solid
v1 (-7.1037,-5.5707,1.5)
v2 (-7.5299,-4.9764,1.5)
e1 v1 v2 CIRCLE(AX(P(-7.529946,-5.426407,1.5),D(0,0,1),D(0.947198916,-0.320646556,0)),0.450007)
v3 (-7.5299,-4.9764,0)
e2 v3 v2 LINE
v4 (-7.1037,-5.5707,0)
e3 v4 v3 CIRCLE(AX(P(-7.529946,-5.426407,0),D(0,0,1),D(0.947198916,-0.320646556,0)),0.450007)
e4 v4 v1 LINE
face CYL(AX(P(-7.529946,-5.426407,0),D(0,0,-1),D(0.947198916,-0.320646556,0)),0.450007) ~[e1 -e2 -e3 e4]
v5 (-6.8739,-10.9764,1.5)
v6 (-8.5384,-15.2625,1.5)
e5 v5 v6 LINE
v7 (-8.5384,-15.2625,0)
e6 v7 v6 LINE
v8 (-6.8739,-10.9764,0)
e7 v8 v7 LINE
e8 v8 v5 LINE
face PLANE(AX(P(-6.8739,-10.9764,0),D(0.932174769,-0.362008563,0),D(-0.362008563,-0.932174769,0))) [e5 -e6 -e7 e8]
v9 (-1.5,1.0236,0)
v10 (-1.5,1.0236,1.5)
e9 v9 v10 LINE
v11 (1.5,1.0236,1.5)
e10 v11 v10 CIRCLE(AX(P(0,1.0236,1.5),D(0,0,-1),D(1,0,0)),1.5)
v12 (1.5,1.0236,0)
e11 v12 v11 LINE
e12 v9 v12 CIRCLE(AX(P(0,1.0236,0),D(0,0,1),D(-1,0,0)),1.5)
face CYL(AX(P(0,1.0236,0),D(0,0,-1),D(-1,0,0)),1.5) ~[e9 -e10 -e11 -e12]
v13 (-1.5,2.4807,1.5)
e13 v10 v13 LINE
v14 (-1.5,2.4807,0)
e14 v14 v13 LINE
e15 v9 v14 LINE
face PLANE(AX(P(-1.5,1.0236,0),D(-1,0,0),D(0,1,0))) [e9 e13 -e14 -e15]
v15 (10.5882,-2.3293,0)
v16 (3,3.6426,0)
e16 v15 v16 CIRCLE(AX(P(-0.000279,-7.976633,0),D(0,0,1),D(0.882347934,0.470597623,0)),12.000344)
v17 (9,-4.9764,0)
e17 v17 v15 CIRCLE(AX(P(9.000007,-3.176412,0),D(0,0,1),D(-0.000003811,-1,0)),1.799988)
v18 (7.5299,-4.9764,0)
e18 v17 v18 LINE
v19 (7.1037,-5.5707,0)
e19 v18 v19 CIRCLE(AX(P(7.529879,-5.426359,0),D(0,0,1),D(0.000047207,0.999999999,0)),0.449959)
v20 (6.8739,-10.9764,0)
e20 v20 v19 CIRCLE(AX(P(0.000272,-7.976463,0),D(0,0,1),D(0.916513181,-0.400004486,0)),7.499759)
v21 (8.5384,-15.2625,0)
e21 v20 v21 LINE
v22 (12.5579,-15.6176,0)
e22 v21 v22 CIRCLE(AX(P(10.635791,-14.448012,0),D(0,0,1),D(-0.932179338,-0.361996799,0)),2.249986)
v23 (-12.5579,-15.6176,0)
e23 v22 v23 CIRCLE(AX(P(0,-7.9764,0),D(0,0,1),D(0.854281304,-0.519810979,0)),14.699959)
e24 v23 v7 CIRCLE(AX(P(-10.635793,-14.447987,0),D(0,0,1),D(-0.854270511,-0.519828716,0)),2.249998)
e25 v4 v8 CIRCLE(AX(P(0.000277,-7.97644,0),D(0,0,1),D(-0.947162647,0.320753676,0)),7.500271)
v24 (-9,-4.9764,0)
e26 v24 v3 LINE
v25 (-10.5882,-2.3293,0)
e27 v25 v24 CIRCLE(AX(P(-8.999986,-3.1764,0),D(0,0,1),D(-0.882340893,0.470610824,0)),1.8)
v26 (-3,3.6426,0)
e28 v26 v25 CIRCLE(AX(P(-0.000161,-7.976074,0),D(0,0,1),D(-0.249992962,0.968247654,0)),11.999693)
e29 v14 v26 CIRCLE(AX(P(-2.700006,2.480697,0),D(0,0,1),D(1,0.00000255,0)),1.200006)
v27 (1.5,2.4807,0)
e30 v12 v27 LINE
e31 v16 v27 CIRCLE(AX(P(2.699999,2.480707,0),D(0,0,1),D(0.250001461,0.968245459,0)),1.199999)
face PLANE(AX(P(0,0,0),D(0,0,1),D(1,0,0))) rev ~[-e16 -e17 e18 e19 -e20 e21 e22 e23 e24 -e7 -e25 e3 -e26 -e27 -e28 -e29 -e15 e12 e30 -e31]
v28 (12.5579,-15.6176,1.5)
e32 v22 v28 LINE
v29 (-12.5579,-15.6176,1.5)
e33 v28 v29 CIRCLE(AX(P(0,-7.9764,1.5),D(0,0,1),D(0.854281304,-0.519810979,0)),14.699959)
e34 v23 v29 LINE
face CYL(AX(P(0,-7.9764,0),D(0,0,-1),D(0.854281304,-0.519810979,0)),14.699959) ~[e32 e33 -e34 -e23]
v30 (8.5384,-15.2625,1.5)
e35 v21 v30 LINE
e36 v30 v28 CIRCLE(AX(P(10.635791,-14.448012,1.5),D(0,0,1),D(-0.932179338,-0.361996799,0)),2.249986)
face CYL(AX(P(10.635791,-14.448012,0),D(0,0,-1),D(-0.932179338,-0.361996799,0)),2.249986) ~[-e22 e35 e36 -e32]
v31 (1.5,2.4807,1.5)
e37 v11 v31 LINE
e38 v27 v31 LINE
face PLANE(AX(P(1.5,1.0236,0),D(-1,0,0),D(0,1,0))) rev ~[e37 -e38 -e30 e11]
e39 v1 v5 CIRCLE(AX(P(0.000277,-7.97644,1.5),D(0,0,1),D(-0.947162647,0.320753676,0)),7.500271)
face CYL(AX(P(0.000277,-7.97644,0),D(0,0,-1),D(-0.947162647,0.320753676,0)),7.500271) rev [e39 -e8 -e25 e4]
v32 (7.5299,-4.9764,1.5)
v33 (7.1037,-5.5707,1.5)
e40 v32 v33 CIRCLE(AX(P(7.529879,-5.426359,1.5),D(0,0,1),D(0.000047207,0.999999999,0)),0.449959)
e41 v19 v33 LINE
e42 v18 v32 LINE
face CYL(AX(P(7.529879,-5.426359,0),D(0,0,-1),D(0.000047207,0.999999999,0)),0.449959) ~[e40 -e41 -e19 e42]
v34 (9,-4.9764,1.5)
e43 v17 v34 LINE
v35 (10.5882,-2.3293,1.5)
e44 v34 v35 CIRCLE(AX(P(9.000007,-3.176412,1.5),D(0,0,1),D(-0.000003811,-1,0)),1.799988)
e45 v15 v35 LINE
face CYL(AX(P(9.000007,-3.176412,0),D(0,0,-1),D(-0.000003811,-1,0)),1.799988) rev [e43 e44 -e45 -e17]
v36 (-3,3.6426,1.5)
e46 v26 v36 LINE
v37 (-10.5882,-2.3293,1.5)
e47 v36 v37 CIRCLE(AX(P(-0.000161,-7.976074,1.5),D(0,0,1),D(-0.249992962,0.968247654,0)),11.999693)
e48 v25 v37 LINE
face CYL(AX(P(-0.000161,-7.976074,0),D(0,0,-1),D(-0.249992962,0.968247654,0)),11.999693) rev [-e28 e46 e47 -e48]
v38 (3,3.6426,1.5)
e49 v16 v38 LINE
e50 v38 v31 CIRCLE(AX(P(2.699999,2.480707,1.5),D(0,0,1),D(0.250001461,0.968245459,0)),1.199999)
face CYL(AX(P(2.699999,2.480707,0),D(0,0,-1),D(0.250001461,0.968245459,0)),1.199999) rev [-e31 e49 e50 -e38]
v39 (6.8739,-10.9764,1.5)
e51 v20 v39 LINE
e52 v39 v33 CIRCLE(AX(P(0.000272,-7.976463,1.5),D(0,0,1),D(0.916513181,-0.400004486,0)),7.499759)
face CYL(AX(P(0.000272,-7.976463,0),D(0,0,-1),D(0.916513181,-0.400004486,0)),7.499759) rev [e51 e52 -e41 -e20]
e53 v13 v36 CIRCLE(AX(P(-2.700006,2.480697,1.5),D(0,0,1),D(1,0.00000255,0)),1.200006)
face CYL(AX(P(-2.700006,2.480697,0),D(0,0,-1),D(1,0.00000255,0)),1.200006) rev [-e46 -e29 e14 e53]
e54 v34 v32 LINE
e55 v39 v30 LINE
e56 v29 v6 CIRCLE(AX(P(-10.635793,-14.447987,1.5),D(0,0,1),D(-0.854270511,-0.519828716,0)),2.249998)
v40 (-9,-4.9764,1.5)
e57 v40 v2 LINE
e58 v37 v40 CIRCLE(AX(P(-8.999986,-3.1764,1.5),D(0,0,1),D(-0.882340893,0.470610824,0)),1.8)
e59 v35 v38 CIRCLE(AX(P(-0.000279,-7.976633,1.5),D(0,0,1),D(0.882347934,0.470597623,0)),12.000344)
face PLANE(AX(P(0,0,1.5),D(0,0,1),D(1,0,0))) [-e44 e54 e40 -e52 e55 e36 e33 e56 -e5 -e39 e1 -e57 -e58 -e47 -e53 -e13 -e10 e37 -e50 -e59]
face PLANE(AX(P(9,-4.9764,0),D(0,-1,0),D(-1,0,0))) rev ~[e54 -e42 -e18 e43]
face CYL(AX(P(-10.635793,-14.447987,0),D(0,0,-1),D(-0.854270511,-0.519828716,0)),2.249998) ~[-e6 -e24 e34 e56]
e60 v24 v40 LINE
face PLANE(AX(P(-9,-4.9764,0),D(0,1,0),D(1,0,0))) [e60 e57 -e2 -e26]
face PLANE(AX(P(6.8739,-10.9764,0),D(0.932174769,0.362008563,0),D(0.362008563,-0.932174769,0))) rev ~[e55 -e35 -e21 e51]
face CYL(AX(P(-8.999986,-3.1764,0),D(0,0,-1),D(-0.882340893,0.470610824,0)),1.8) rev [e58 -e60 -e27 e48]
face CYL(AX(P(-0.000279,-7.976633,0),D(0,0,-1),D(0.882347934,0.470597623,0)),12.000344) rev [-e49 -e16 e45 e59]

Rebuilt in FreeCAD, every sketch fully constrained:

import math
import FreeCAD as App
import Part
import Sketcher
Q = App.Units.Quantity

doc = App.newDocument("Part")
params = doc.addObject("Spreadsheet::Sheet", "Params")
for row, (alias, value) in enumerate([
    ("sketch1_radius", "12 mm"),
    ("sketch1_radius2", "1.5 mm"),
    ("sketch1_radius3", "1.2 mm"),
    ("sketch1_radius4", "1.8 mm"),
    ("sketch1_radius5", "7.5 mm"),
    ("pad1_length", "1.5 mm"),
], start=1):
    params.set(f"A{row}", alias)
    params.set(f"B{row}", "=" + value)
    params.setAlias(f"B{row}", alias)

body = doc.addObject("PartDesign::Body", "Body")

sketch1 = body.newObject("Sketcher::SketchObject", "Sketch")
sketch1.AttachmentSupport = (doc.getObject("XY_Plane"), [""])
sketch1.MapMode = "FlatFace"
sketch1.addGeometry([
    Part.ArcOfCircle(Part.Circle(App.Vector(0, 1.02, 0), App.Vector(0, 0, 1), 1.5), math.radians(180), math.radians(360)),
    Part.LineSegment(App.Vector(1.5, 1.02, 0), App.Vector(1.5, 2.48, 0)),
    Part.ArcOfCircle(Part.Circle(App.Vector(2.7, 2.48, 0), App.Vector(0, 0, 1), 1.2), math.radians(76), math.radians(180)),
    Part.ArcOfCircle(Part.Circle(App.Vector(0, -7.98, 0), App.Vector(0, 0, 1), 12), math.radians(28), math.radians(76)),
    Part.ArcOfCircle(Part.Circle(App.Vector(9, -3.18, 0), App.Vector(0, 0, 1), 1.8), math.radians(-90), math.radians(28)),
    Part.LineSegment(App.Vector(9, -4.98, 0), App.Vector(7.53, -4.98, 0)),
    Part.ArcOfCircle(Part.Circle(App.Vector(7.53, -5.43, 0), App.Vector(0, 0, 1), 0.45), math.radians(90), math.radians(199)),
    Part.ArcOfCircle(Part.Circle(App.Vector(0, -7.98, 0), App.Vector(0, 0, 1), 7.5), math.radians(-24), math.radians(19)),
    Part.LineSegment(App.Vector(6.87, -10.98, 0), App.Vector(8.54, -15.26, 0)),
    Part.ArcOfCircle(Part.Circle(App.Vector(10.64, -14.45, 0), App.Vector(0, 0, 1), 2.25), math.radians(-159), math.radians(-31)),
    Part.ArcOfCircle(Part.Circle(App.Vector(0, -7.98, 0), App.Vector(0, 0, 1), 14.7), math.radians(-31), math.radians(211)),
    Part.ArcOfCircle(Part.Circle(App.Vector(-10.64, -14.45, 0), App.Vector(0, 0, 1), 2.25), math.radians(-149), math.radians(-21)),
    Part.LineSegment(App.Vector(-8.54, -15.26, 0), App.Vector(-6.87, -10.98, 0)),
    Part.ArcOfCircle(Part.Circle(App.Vector(0, -7.98, 0), App.Vector(0, 0, 1), 7.5), math.radians(161), math.radians(204)),
    Part.ArcOfCircle(Part.Circle(App.Vector(-7.53, -5.43, 0), App.Vector(0, 0, 1), 0.45), math.radians(-19), math.radians(90)),
    Part.LineSegment(App.Vector(-7.53, -4.98, 0), App.Vector(-9, -4.98, 0)),
    Part.ArcOfCircle(Part.Circle(App.Vector(-9, -3.18, 0), App.Vector(0, 0, 1), 1.8), math.radians(152), math.radians(270)),
    Part.ArcOfCircle(Part.Circle(App.Vector(0, -7.98, 0), App.Vector(0, 0, 1), 12), math.radians(104), math.radians(152)),
    Part.ArcOfCircle(Part.Circle(App.Vector(-2.7, 2.48, 0), App.Vector(0, 0, 1), 1.2), math.radians(0), math.radians(104)),
    Part.LineSegment(App.Vector(-1.5, 2.48, 0), App.Vector(-1.5, 1.02, 0)),
], False)
sketch1.addConstraint([
    Sketcher.Constraint("Tangent", 0, 2, 1, 1),
    Sketcher.Constraint("Tangent", 1, 2, 2, 2),
    Sketcher.Constraint("Tangent", 2, 1, 3, 2),
    Sketcher.Constraint("Tangent", 3, 1, 4, 2),
    Sketcher.Constraint("Tangent", 4, 1, 5, 1),
    Sketcher.Constraint("Tangent", 5, 2, 6, 1),
    Sketcher.Constraint("Tangent", 6, 2, 7, 2),
    Sketcher.Constraint("Coincident", 7, 1, 8, 1),
    Sketcher.Constraint("Tangent", 8, 2, 9, 1),
    Sketcher.Constraint("Tangent", 9, 2, 10, 1),
    Sketcher.Constraint("Tangent", 10, 2, 11, 1),
    Sketcher.Constraint("Tangent", 11, 2, 12, 1),
    Sketcher.Constraint("Coincident", 12, 2, 13, 2),
    Sketcher.Constraint("Tangent", 13, 1, 14, 1),
    Sketcher.Constraint("Tangent", 14, 2, 15, 1),
    Sketcher.Constraint("Tangent", 15, 2, 16, 2),
    Sketcher.Constraint("Tangent", 16, 1, 17, 2),
    Sketcher.Constraint("Tangent", 17, 1, 18, 2),
    Sketcher.Constraint("Tangent", 18, 1, 19, 1),
    Sketcher.Constraint("Tangent", 19, 2, 0, 1),
    Sketcher.Constraint("Vertical", 1),
    Sketcher.Constraint("Horizontal", 5),
    Sketcher.Constraint("Horizontal", 15),
    Sketcher.Constraint("Vertical", 19),
    Sketcher.Constraint("Coincident", 7, 3, 3, 3),
    Sketcher.Constraint("Coincident", 10, 3, 3, 3),
    Sketcher.Constraint("Coincident", 13, 3, 3, 3),
    Sketcher.Constraint("Coincident", 17, 3, 3, 3),
    Sketcher.Constraint("Equal", 9, 11),
    Sketcher.Constraint("Equal", 7, 13),
    Sketcher.Constraint("Equal", 6, 14),
    Sketcher.Constraint("Equal", 4, 16),
    Sketcher.Constraint("Equal", 3, 17),
    Sketcher.Constraint("Equal", 2, 18),
    Sketcher.Constraint("Symmetric", 9, 3, 11, 3, -2),
    Sketcher.Constraint("PointOnObject", 0, 3, -2),
    Sketcher.Constraint("Horizontal", 6, 3, 14, 3),
    Sketcher.Constraint("Horizontal", 8, 2, 11, 2),
    Sketcher.Constraint("Radius", 3, Q("12 mm")),
    Sketcher.Constraint("Radius", 0, Q("1.5 mm")),
    Sketcher.Constraint("Radius", 2, Q("1.2 mm")),
    Sketcher.Constraint("Radius", 4, Q("1.8 mm")),
    Sketcher.Constraint("Radius", 7, Q("7.5 mm")),
    Sketcher.Constraint("Radius", 10, Q("14.7 mm")),
    Sketcher.Constraint("Radius", 6, Q("0.45 mm")),
    Sketcher.Constraint("Radius", 9, Q("2.25 mm")),
    Sketcher.Constraint("DistanceY", 3, 3, 4, 1, Q("3 mm")),
    Sketcher.Constraint("DistanceY", 12, 2, 3, 3, Q("3 mm")),
    Sketcher.Constraint("DistanceY", 3, 3, 0, 3, Q("9 mm")),
    Sketcher.Constraint("Distance", 8, Q("4.598 mm")),
    Sketcher.Constraint("DistanceY", 9, 3, -1, 1, Q("14.448 mm")),
])
sketch1.setExpression("Constraints[38]", "Params.sketch1_radius")
sketch1.setExpression("Constraints[39]", "Params.sketch1_radius2")
sketch1.setExpression("Constraints[40]", "Params.sketch1_radius3")
sketch1.setExpression("Constraints[41]", "Params.sketch1_radius4")
sketch1.setExpression("Constraints[42]", "Params.sketch1_radius5")
pad1 = body.newObject("PartDesign::Pad", "Pad")
pad1.Profile = sketch1
pad1.setExpression("Length", "Params.pad1_length")

doc.recompute()
